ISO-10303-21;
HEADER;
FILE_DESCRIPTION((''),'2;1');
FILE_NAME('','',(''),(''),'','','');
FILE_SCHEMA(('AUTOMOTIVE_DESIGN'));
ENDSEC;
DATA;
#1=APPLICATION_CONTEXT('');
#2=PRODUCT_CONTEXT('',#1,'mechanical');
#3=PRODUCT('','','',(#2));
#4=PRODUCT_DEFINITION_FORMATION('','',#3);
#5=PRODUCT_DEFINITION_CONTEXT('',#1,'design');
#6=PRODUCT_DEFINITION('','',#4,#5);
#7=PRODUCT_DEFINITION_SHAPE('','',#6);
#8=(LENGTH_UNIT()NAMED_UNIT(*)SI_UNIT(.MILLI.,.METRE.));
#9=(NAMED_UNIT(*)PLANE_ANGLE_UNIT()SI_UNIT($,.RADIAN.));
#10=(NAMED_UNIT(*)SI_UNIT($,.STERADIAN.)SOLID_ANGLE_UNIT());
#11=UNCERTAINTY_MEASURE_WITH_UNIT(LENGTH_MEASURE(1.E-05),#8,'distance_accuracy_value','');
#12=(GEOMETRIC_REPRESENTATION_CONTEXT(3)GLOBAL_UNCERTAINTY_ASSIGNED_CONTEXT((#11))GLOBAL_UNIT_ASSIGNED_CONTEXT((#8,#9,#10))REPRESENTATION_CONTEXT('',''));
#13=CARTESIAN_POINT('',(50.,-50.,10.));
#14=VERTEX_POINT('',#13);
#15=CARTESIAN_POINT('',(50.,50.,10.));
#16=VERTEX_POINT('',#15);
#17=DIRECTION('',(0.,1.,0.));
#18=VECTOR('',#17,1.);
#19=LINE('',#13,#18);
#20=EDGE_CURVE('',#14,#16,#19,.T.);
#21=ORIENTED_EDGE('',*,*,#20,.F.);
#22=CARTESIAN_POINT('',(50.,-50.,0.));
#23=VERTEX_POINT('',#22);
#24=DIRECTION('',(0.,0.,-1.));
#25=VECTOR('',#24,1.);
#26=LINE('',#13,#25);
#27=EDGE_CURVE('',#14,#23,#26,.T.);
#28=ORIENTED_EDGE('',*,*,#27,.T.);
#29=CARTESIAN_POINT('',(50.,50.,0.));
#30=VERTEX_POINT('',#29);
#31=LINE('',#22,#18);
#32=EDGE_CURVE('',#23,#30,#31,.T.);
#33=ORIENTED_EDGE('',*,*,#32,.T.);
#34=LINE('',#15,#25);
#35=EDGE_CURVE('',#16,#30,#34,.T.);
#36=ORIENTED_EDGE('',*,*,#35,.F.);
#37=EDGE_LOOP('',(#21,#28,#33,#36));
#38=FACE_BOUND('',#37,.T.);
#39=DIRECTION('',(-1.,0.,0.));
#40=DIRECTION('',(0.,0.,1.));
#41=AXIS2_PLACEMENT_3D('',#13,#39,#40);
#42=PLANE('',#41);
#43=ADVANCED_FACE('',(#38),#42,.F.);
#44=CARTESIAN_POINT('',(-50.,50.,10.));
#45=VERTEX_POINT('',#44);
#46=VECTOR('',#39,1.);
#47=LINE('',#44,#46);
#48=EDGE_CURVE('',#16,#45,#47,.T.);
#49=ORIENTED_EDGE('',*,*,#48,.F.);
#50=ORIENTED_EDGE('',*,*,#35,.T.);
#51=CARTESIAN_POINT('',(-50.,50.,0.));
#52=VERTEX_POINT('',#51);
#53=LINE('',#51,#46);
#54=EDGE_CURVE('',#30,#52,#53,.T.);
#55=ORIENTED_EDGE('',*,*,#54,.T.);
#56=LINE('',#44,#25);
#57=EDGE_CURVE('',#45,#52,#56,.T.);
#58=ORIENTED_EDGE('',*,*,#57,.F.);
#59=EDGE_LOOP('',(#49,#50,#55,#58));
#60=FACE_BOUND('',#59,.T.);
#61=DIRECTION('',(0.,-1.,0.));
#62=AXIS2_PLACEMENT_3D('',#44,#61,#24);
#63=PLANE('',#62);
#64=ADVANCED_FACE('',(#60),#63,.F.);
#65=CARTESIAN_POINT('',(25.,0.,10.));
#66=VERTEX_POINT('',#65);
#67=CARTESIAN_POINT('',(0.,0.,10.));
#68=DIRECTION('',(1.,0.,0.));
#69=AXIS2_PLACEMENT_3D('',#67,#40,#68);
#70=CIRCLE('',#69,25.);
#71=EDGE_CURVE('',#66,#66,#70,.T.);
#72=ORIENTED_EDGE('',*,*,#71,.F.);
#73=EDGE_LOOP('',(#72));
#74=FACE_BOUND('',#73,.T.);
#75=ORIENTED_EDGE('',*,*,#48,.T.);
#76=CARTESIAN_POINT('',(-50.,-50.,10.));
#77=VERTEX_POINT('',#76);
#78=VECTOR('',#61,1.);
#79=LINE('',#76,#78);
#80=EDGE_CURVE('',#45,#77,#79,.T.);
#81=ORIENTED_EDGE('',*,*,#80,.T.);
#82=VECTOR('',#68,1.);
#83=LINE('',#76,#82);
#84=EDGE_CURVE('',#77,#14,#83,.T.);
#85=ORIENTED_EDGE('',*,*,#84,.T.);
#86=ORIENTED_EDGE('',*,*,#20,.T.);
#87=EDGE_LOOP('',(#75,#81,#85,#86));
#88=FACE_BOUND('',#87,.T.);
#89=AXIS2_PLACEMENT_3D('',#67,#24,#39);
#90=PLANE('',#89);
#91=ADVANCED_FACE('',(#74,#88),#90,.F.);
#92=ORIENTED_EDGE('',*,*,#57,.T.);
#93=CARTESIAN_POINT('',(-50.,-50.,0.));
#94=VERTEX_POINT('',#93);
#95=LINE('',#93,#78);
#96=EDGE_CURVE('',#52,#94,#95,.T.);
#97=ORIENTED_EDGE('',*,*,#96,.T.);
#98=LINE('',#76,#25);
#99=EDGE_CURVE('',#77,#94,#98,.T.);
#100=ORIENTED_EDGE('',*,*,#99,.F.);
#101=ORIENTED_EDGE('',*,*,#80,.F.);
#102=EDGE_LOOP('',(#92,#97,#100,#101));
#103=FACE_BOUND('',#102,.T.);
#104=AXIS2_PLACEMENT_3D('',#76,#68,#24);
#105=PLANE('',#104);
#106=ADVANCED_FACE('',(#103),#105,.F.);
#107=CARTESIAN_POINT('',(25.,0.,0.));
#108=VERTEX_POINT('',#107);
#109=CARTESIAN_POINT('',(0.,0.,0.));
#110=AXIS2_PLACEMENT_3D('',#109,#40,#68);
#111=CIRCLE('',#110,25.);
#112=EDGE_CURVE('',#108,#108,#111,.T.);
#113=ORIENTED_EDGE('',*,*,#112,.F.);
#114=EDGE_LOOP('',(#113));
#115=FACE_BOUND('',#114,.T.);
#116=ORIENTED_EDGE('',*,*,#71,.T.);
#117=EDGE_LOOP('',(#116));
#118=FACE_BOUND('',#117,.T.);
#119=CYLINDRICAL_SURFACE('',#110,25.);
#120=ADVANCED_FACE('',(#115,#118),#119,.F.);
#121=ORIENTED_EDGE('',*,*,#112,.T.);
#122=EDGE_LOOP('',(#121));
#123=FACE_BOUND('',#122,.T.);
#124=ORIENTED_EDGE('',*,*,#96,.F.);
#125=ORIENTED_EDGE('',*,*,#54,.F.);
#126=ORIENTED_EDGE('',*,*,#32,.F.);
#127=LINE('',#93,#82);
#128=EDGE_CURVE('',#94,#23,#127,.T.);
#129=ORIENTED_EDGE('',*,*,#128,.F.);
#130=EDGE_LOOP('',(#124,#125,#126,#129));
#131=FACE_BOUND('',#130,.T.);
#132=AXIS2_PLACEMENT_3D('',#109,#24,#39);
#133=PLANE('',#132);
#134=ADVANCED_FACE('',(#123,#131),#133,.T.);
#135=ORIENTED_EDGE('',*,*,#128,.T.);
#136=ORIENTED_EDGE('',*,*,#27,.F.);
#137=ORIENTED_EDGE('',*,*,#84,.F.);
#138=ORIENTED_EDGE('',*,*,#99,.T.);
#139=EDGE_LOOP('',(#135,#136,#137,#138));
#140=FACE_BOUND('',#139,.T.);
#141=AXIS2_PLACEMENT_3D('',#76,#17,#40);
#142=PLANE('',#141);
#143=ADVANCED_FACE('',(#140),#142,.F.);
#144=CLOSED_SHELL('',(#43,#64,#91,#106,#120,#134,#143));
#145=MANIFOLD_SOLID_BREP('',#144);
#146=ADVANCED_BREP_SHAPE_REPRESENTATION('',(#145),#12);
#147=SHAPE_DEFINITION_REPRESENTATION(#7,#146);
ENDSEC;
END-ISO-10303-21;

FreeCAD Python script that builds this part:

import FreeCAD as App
import Part
import Sketcher

V = App.Vector
Q = App.Units.Quantity


def add_polygon(sketch, points):
    """Adds a closed chain of lines whose ends are joined by coincident constraints."""
    first, n = sketch.GeometryCount, len(points)
    for a, b in zip(points, points[1:] + points[:1]):
        sketch.addGeometry(Part.LineSegment(App.Vector(*a, 0), App.Vector(*b, 0)), False)
    for i in range(n):
        sketch.addConstraint(Sketcher.Constraint("Coincident", first + i, 2, first + (i + 1) % n, 1))

doc = App.newDocument("Part")
body = doc.addObject("PartDesign::Body", "Body")

# Sketch on XY plane
sketch1 = body.newObject("Sketcher::SketchObject", "Sketch")
sketch1.AttachmentSupport = (doc.getObject("XY_Plane"), [""])
sketch1.MapMode = "FlatFace"
add_polygon(sketch1, [(-50, 50), (-50, -50), (50, -50), (50, 50)])  # lines 0-3
sketch1.addConstraint([
    Sketcher.Constraint("Vertical", 0),
    Sketcher.Constraint("Horizontal", 1),
    Sketcher.Constraint("Vertical", 2),
    Sketcher.Constraint("Horizontal", 3),
    Sketcher.Constraint("Symmetric", 0, 2, 2, 2, -1, 1),
    Sketcher.Constraint("Equal", 3, 0),
    Sketcher.Constraint("DistanceX", 1, 1, 1, 2, Q("100 mm")),
])
pad1 = body.newObject("PartDesign::Pad", "Pad")
pad1.Profile = sketch1
pad1.Length = 10

# Sketch on XY plane
sketch2 = body.newObject("Sketcher::SketchObject", "Sketch001")
sketch2.AttachmentSupport = (doc.getObject("XY_Plane"), [""])
sketch2.MapMode = "FlatFace"
sketch2.AttachmentOffset = App.Placement(V(0, 0, 10), App.Rotation())
sketch2.addGeometry(Part.Circle(V(0, 0, 0), V(0, 0, 1), 25), False)
sketch2.addConstraint([
    Sketcher.Constraint("Coincident", 0, 3, -1, 1),
    Sketcher.Constraint("Diameter", 0, Q("50 mm")),
])
pocket1 = body.newObject("PartDesign::Pocket", "Pocket")
pocket1.Profile = sketch2
pocket1.Length = 10

doc.recompute()
